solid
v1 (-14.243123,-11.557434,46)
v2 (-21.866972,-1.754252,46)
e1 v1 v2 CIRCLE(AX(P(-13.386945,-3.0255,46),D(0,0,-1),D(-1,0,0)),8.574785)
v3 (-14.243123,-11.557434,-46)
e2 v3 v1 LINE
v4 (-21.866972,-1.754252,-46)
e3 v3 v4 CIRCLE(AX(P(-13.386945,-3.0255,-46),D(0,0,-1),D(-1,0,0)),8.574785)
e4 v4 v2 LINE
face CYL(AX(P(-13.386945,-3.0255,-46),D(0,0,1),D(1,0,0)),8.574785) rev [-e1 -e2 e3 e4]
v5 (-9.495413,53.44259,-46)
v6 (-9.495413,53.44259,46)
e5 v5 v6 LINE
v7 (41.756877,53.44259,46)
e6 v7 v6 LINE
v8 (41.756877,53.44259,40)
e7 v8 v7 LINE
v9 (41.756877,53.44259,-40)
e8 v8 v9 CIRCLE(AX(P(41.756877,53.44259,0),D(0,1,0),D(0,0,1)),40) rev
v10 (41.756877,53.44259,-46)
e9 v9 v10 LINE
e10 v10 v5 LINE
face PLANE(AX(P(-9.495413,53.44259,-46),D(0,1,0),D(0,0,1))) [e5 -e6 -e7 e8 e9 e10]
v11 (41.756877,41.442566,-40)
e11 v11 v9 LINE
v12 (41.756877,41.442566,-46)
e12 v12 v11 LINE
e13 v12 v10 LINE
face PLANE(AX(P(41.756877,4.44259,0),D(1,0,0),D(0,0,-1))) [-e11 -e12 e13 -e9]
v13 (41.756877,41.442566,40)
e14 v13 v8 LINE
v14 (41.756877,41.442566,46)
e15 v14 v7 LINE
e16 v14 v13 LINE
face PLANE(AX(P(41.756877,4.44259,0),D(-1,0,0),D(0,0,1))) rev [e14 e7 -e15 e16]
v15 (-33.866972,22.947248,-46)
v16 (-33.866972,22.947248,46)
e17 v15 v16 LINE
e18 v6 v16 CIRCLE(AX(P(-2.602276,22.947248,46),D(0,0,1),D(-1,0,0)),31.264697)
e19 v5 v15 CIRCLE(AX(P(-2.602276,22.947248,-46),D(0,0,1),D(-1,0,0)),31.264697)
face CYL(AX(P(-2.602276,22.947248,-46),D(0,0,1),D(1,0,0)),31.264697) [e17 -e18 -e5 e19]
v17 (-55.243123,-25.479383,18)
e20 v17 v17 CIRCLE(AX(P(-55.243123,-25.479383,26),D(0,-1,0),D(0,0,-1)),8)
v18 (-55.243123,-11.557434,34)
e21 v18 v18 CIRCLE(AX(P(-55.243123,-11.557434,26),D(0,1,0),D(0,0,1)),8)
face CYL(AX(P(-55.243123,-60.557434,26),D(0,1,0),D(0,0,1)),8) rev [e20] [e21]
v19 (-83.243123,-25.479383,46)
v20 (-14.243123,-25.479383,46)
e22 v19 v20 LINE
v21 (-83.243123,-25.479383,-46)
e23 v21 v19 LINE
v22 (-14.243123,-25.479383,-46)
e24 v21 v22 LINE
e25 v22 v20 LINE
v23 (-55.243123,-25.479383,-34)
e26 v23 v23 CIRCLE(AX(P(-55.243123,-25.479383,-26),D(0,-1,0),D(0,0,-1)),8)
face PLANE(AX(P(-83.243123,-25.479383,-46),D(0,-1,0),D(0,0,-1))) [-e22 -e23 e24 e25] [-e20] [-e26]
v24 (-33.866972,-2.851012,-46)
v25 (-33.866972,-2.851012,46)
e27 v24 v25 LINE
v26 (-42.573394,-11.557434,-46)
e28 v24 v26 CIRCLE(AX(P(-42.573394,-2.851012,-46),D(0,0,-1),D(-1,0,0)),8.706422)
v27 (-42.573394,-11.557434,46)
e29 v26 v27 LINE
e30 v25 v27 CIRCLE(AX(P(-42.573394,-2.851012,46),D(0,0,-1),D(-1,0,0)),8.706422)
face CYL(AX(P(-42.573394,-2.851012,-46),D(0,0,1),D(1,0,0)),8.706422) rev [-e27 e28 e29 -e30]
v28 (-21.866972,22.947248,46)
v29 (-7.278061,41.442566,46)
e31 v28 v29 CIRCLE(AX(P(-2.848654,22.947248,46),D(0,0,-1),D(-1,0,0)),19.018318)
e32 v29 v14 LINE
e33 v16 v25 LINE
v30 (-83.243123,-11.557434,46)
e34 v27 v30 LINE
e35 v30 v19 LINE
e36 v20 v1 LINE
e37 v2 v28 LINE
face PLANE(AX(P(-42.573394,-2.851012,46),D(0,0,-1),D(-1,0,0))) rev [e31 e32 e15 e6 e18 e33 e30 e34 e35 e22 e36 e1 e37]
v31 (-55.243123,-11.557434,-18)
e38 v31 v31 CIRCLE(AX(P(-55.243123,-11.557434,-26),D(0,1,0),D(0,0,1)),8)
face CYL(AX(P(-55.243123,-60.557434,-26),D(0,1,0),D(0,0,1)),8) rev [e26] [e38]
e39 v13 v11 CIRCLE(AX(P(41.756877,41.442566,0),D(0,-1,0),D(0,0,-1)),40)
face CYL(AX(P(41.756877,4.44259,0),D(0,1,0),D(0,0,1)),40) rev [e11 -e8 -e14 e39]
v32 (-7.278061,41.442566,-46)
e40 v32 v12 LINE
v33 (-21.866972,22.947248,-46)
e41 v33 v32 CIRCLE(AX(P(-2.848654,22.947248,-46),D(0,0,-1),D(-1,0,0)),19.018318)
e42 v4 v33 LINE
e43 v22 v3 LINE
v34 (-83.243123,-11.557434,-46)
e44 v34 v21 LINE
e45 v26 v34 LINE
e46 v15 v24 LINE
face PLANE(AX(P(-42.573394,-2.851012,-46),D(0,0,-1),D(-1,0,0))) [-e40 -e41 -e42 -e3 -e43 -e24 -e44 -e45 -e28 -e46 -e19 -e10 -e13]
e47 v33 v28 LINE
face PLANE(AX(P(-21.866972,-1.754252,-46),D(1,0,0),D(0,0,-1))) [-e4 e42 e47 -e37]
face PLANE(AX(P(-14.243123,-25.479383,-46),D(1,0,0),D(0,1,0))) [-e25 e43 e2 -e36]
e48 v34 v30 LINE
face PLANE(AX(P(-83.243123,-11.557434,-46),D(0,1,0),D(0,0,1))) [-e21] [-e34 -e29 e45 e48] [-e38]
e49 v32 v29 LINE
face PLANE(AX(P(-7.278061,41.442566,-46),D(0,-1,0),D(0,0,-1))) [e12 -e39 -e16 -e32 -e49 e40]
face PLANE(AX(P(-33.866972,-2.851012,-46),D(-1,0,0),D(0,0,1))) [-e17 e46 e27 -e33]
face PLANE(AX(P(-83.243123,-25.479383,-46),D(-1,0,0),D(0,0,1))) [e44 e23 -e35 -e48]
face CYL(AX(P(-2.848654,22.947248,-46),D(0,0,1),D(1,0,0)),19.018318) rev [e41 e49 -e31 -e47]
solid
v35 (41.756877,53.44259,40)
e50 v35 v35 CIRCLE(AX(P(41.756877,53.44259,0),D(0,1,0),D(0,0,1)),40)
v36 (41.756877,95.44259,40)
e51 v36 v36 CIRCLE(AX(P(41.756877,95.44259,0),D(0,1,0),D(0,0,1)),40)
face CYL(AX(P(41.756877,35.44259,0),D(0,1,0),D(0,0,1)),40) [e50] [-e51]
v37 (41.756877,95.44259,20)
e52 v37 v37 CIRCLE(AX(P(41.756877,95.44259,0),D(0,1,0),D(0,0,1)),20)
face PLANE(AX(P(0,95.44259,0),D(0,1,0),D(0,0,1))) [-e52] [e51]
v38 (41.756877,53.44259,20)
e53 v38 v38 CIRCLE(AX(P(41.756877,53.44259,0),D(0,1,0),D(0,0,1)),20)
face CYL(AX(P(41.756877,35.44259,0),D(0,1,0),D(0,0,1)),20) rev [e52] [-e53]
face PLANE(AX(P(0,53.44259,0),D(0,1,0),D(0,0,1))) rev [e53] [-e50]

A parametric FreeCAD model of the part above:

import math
import FreeCAD as App
import Part
import Sketcher

doc = App.newDocument("Part")
body = doc.addObject("PartDesign::Body", "Body")
body.AllowCompound = True

sketch1 = body.newObject("Sketcher::SketchObject", "Sketch")
sketch1.AttachmentSupport = (doc.getObject("XY_Plane"), [""])
sketch1.MapMode = "FlatFace"
sketch1.addGeometry([
    Part.LineSegment(App.Vector(-83.243123, -25.479383, 0), App.Vector(-14.243123, -25.479383, 0)),
    Part.LineSegment(App.Vector(-14.243123, -25.479383, 0), App.Vector(-14.243123, -11.557434, 0)),
    Part.ArcOfCircle(Part.Circle(App.Vector(-13.386945, -3.0255, 0), App.Vector(0, 0, 1), 8.574785), math.radians(171.474226), math.radians(264.269563)),
    Part.LineSegment(App.Vector(-21.866972, -1.754252, 0), App.Vector(-21.866972, 22.947248, 0)),
    Part.ArcOfCircle(Part.Circle(App.Vector(-2.848654, 22.947248, 0), App.Vector(0, 0, 1), 19.018318), math.radians(103.467994), math.radians(180)),
    Part.LineSegment(App.Vector(-7.278061, 41.442566, 0), App.Vector(87.990822, 41.442566, 0)),
    Part.LineSegment(App.Vector(87.990822, 41.442566, 0), App.Vector(87.990822, 53.44259, 0)),
    Part.LineSegment(App.Vector(87.990822, 53.44259, 0), App.Vector(-9.495413, 53.44259, 0)),
    Part.ArcOfCircle(Part.Circle(App.Vector(-2.602276, 22.947248, 0), App.Vector(0, 0, 1), 31.264697), math.radians(102.737033), math.radians(180)),
    Part.LineSegment(App.Vector(-33.866972, 22.947248, 0), App.Vector(-33.866972, -2.851012, 0)),
    Part.ArcOfCircle(Part.Circle(App.Vector(-42.573394, -2.851012, 0), App.Vector(0, 0, 1), 8.706422), math.radians(-90), math.radians(0)),
    Part.LineSegment(App.Vector(-42.573394, -11.557434, 0), App.Vector(-83.243123, -11.557434, 0)),
    Part.LineSegment(App.Vector(-83.243123, -11.557434, 0), App.Vector(-83.243123, -25.479383, 0)),
], False)
sketch1.addConstraint([
    Sketcher.Constraint("Coincident", 0, 2, 1, 1),
    Sketcher.Constraint("Coincident", 1, 2, 2, 2),
    Sketcher.Constraint("Coincident", 2, 1, 3, 1),
    Sketcher.Constraint("Tangent", 3, 2, 4, 2),
    Sketcher.Constraint("Coincident", 4, 1, 5, 1),
    Sketcher.Constraint("Coincident", 5, 2, 6, 1),
    Sketcher.Constraint("Coincident", 6, 2, 7, 1),
    Sketcher.Constraint("Coincident", 7, 2, 8, 1),
    Sketcher.Constraint("Tangent", 8, 2, 9, 1),
    Sketcher.Constraint("Tangent", 9, 2, 10, 2),
    Sketcher.Constraint("Tangent", 10, 1, 11, 1),
    Sketcher.Constraint("Coincident", 11, 2, 12, 1),
    Sketcher.Constraint("Coincident", 12, 2, 0, 1),
    Sketcher.Constraint("Horizontal", 0),
    Sketcher.Constraint("Vertical", 1),
    Sketcher.Constraint("Vertical", 3),
    Sketcher.Constraint("Horizontal", 5),
    Sketcher.Constraint("Vertical", 6),
    Sketcher.Constraint("Horizontal", 7),
    Sketcher.Constraint("Vertical", 9),
    Sketcher.Constraint("Horizontal", 11),
    Sketcher.Constraint("Vertical", 12),
    Sketcher.Constraint("Horizontal", 4, 3, 8, 3),
    Sketcher.Constraint("Horizontal", 1, 2, 10, 1),
    Sketcher.Constraint("DistanceX", 0, 1, 0, 2, 69.0),
    Sketcher.Constraint("DistanceX", 8, 2, 3, 2, 12.0),
    Sketcher.Constraint("Radius", 4, 19.018318),
    Sketcher.Constraint("DistanceY", 3, 1, 3, 2, 24.701499),
    Sketcher.Constraint("Radius", 2, 8.574785),
    Sketcher.Constraint("Radius", 8, 31.264697),
    Sketcher.Constraint("Radius", 10, 8.706422),
    Sketcher.Constraint("DistanceX", 11, 2, 11, 1, 40.669728),
    Sketcher.Constraint("DistanceY", 1, 1, 1, 2, 13.921948),
    Sketcher.Constraint("DistanceY", 9, 2, 9, 1, 25.79826),
    Sketcher.Constraint("DistanceY", 2, 3, -1, 1, 3.0255),
    Sketcher.Constraint("DistanceX", 5, 1, 5, 2, 95.268883),
    Sketcher.Constraint("DistanceX", 7, 2, 7, 1, 97.486235),
    Sketcher.Constraint("DistanceY", 6, 1, 6, 2, 12.000025),
    Sketcher.Constraint("DistanceX", 4, 1, -1, 1, 7.278061),
])
pad1 = body.newObject("PartDesign::Pad", "Pad")
pad1.Profile = sketch1
pad1.Type = "TwoLengths"
pad1.Length = 46
pad1.Length2 = 46

sketch2 = body.newObject("Sketcher::SketchObject", "Sketch001")
sketch2.AttachmentSupport = (doc.getObject("XZ_Plane"), [""])
sketch2.MapMode = "FlatFace"
sketch2.AttachmentOffset = App.Placement(App.Vector(0, 0, -53.44259), App.Rotation())
sketch2.addGeometry([
    Part.Circle(App.Vector(42, 0, 0), App.Vector(0, 0, 1), 40),
    Part.Circle(App.Vector(42, 0, 0), App.Vector(0, 0, 1), 20),
], False)
sketch2.addConstraint([
    Sketcher.Constraint("Coincident", 1, 3, 0, 3),
    Sketcher.Constraint("PointOnObject", 0, 3, -1),
    Sketcher.Constraint("Diameter", 0, 80.0),
    Sketcher.Constraint("Diameter", 1, 40.0),
    Sketcher.Constraint("DistanceX", -1, 1, 0, 3, 41.756877),
])
pad2 = body.newObject("PartDesign::Pad", "Pad001")
pad2.Profile = sketch2
pad2.Type = "TwoLengths"
pad2.Length = 42
pad2.Length2 = 18
pad2.Reversed = True

sketch3 = body.newObject("Sketcher::SketchObject", "Sketch002")
sketch3.AttachmentSupport = (doc.getObject("XZ_Plane"), [""])
sketch3.MapMode = "FlatFace"
sketch3.AttachmentOffset = App.Placement(App.Vector(0, 0, -53.44259), App.Rotation())
sketch3.addGeometry([
    Part.LineSegment(App.Vector(42, -46, 0), App.Vector(42, -40, 0)),
    Part.ArcOfCircle(Part.Circle(App.Vector(42, 0, 0), App.Vector(0, 0, 1), 40), math.radians(90), math.radians(270)),
    Part.LineSegment(App.Vector(42, 40, 0), App.Vector(42, 46, 0)),
    Part.LineSegment(App.Vector(42, 46, 0), App.Vector(88, 46, 0)),
    Part.LineSegment(App.Vector(88, 46, 0), App.Vector(88, -46, 0)),
    Part.LineSegment(App.Vector(88, -46, 0), App.Vector(42, -46, 0)),
], False)
sketch3.addConstraint([
    Sketcher.Constraint("Coincident", 0, 2, 1, 2),
    Sketcher.Constraint("Coincident", 1, 1, 2, 1),
    Sketcher.Constraint("Coincident", 2, 2, 3, 1),
    Sketcher.Constraint("Coincident", 3, 2, 4, 1),
    Sketcher.Constraint("Coincident", 4, 2, 5, 1),
    Sketcher.Constraint("Coincident", 5, 2, 0, 1),
    Sketcher.Constraint("Vertical", 0),
    Sketcher.Constraint("Vertical", 2),
    Sketcher.Constraint("Horizontal", 3),
    Sketcher.Constraint("Vertical", 4),
    Sketcher.Constraint("Horizontal", 5),
    Sketcher.Constraint("Symmetric", 0, 2, 1, 1, -1),
    Sketcher.Constraint("Vertical", 1, 3, 0, 2),
    Sketcher.Constraint("Equal", 0, 2),
    Sketcher.Constraint("Radius", 1, 40.0),
    Sketcher.Constraint("DistanceY", 0, 1, 0, 2, 6.0),
    Sketcher.Constraint("DistanceX", 3, 1, 3, 2, 46.233945),
    Sketcher.Constraint("DistanceX", -1, 1, 3, 2, 87.990822),
])
pocket1 = body.newObject("PartDesign::Pocket", "Pocket")
pocket1.Profile = sketch3
pocket1.Length = 49
pocket1.Reversed = True

sketch4 = body.newObject("Sketcher::SketchObject", "Sketch003")
sketch4.AttachmentSupport = (doc.getObject("XZ_Plane"), [""])
sketch4.MapMode = "FlatFace"
sketch4.AttachmentOffset = App.Placement(App.Vector(0, 0, 11.557434), App.Rotation())
sketch4.addGeometry([
    Part.Circle(App.Vector(-55, 26, 0), App.Vector(0, 0, 1), 8),
    Part.Circle(App.Vector(-55, -26, 0), App.Vector(0, 0, 1), 8),
], False)
sketch4.addConstraint([
    Sketcher.Constraint("Equal", 0, 1),
    Sketcher.Constraint("Symmetric", 0, 3, 1, 3, -1),
    Sketcher.Constraint("Diameter", 0, 16.0),
    Sketcher.Constraint("DistanceY", -1, 1, 0, 3, 26.0),
    Sketcher.Constraint("DistanceX", 0, 3, -1, 1, 55.243123),
])
pocket2 = body.newObject("PartDesign::Pocket", "Pocket001")
pocket2.Profile = sketch4
pocket2.Length = 49
pocket2.Reversed = True

doc.recompute()
